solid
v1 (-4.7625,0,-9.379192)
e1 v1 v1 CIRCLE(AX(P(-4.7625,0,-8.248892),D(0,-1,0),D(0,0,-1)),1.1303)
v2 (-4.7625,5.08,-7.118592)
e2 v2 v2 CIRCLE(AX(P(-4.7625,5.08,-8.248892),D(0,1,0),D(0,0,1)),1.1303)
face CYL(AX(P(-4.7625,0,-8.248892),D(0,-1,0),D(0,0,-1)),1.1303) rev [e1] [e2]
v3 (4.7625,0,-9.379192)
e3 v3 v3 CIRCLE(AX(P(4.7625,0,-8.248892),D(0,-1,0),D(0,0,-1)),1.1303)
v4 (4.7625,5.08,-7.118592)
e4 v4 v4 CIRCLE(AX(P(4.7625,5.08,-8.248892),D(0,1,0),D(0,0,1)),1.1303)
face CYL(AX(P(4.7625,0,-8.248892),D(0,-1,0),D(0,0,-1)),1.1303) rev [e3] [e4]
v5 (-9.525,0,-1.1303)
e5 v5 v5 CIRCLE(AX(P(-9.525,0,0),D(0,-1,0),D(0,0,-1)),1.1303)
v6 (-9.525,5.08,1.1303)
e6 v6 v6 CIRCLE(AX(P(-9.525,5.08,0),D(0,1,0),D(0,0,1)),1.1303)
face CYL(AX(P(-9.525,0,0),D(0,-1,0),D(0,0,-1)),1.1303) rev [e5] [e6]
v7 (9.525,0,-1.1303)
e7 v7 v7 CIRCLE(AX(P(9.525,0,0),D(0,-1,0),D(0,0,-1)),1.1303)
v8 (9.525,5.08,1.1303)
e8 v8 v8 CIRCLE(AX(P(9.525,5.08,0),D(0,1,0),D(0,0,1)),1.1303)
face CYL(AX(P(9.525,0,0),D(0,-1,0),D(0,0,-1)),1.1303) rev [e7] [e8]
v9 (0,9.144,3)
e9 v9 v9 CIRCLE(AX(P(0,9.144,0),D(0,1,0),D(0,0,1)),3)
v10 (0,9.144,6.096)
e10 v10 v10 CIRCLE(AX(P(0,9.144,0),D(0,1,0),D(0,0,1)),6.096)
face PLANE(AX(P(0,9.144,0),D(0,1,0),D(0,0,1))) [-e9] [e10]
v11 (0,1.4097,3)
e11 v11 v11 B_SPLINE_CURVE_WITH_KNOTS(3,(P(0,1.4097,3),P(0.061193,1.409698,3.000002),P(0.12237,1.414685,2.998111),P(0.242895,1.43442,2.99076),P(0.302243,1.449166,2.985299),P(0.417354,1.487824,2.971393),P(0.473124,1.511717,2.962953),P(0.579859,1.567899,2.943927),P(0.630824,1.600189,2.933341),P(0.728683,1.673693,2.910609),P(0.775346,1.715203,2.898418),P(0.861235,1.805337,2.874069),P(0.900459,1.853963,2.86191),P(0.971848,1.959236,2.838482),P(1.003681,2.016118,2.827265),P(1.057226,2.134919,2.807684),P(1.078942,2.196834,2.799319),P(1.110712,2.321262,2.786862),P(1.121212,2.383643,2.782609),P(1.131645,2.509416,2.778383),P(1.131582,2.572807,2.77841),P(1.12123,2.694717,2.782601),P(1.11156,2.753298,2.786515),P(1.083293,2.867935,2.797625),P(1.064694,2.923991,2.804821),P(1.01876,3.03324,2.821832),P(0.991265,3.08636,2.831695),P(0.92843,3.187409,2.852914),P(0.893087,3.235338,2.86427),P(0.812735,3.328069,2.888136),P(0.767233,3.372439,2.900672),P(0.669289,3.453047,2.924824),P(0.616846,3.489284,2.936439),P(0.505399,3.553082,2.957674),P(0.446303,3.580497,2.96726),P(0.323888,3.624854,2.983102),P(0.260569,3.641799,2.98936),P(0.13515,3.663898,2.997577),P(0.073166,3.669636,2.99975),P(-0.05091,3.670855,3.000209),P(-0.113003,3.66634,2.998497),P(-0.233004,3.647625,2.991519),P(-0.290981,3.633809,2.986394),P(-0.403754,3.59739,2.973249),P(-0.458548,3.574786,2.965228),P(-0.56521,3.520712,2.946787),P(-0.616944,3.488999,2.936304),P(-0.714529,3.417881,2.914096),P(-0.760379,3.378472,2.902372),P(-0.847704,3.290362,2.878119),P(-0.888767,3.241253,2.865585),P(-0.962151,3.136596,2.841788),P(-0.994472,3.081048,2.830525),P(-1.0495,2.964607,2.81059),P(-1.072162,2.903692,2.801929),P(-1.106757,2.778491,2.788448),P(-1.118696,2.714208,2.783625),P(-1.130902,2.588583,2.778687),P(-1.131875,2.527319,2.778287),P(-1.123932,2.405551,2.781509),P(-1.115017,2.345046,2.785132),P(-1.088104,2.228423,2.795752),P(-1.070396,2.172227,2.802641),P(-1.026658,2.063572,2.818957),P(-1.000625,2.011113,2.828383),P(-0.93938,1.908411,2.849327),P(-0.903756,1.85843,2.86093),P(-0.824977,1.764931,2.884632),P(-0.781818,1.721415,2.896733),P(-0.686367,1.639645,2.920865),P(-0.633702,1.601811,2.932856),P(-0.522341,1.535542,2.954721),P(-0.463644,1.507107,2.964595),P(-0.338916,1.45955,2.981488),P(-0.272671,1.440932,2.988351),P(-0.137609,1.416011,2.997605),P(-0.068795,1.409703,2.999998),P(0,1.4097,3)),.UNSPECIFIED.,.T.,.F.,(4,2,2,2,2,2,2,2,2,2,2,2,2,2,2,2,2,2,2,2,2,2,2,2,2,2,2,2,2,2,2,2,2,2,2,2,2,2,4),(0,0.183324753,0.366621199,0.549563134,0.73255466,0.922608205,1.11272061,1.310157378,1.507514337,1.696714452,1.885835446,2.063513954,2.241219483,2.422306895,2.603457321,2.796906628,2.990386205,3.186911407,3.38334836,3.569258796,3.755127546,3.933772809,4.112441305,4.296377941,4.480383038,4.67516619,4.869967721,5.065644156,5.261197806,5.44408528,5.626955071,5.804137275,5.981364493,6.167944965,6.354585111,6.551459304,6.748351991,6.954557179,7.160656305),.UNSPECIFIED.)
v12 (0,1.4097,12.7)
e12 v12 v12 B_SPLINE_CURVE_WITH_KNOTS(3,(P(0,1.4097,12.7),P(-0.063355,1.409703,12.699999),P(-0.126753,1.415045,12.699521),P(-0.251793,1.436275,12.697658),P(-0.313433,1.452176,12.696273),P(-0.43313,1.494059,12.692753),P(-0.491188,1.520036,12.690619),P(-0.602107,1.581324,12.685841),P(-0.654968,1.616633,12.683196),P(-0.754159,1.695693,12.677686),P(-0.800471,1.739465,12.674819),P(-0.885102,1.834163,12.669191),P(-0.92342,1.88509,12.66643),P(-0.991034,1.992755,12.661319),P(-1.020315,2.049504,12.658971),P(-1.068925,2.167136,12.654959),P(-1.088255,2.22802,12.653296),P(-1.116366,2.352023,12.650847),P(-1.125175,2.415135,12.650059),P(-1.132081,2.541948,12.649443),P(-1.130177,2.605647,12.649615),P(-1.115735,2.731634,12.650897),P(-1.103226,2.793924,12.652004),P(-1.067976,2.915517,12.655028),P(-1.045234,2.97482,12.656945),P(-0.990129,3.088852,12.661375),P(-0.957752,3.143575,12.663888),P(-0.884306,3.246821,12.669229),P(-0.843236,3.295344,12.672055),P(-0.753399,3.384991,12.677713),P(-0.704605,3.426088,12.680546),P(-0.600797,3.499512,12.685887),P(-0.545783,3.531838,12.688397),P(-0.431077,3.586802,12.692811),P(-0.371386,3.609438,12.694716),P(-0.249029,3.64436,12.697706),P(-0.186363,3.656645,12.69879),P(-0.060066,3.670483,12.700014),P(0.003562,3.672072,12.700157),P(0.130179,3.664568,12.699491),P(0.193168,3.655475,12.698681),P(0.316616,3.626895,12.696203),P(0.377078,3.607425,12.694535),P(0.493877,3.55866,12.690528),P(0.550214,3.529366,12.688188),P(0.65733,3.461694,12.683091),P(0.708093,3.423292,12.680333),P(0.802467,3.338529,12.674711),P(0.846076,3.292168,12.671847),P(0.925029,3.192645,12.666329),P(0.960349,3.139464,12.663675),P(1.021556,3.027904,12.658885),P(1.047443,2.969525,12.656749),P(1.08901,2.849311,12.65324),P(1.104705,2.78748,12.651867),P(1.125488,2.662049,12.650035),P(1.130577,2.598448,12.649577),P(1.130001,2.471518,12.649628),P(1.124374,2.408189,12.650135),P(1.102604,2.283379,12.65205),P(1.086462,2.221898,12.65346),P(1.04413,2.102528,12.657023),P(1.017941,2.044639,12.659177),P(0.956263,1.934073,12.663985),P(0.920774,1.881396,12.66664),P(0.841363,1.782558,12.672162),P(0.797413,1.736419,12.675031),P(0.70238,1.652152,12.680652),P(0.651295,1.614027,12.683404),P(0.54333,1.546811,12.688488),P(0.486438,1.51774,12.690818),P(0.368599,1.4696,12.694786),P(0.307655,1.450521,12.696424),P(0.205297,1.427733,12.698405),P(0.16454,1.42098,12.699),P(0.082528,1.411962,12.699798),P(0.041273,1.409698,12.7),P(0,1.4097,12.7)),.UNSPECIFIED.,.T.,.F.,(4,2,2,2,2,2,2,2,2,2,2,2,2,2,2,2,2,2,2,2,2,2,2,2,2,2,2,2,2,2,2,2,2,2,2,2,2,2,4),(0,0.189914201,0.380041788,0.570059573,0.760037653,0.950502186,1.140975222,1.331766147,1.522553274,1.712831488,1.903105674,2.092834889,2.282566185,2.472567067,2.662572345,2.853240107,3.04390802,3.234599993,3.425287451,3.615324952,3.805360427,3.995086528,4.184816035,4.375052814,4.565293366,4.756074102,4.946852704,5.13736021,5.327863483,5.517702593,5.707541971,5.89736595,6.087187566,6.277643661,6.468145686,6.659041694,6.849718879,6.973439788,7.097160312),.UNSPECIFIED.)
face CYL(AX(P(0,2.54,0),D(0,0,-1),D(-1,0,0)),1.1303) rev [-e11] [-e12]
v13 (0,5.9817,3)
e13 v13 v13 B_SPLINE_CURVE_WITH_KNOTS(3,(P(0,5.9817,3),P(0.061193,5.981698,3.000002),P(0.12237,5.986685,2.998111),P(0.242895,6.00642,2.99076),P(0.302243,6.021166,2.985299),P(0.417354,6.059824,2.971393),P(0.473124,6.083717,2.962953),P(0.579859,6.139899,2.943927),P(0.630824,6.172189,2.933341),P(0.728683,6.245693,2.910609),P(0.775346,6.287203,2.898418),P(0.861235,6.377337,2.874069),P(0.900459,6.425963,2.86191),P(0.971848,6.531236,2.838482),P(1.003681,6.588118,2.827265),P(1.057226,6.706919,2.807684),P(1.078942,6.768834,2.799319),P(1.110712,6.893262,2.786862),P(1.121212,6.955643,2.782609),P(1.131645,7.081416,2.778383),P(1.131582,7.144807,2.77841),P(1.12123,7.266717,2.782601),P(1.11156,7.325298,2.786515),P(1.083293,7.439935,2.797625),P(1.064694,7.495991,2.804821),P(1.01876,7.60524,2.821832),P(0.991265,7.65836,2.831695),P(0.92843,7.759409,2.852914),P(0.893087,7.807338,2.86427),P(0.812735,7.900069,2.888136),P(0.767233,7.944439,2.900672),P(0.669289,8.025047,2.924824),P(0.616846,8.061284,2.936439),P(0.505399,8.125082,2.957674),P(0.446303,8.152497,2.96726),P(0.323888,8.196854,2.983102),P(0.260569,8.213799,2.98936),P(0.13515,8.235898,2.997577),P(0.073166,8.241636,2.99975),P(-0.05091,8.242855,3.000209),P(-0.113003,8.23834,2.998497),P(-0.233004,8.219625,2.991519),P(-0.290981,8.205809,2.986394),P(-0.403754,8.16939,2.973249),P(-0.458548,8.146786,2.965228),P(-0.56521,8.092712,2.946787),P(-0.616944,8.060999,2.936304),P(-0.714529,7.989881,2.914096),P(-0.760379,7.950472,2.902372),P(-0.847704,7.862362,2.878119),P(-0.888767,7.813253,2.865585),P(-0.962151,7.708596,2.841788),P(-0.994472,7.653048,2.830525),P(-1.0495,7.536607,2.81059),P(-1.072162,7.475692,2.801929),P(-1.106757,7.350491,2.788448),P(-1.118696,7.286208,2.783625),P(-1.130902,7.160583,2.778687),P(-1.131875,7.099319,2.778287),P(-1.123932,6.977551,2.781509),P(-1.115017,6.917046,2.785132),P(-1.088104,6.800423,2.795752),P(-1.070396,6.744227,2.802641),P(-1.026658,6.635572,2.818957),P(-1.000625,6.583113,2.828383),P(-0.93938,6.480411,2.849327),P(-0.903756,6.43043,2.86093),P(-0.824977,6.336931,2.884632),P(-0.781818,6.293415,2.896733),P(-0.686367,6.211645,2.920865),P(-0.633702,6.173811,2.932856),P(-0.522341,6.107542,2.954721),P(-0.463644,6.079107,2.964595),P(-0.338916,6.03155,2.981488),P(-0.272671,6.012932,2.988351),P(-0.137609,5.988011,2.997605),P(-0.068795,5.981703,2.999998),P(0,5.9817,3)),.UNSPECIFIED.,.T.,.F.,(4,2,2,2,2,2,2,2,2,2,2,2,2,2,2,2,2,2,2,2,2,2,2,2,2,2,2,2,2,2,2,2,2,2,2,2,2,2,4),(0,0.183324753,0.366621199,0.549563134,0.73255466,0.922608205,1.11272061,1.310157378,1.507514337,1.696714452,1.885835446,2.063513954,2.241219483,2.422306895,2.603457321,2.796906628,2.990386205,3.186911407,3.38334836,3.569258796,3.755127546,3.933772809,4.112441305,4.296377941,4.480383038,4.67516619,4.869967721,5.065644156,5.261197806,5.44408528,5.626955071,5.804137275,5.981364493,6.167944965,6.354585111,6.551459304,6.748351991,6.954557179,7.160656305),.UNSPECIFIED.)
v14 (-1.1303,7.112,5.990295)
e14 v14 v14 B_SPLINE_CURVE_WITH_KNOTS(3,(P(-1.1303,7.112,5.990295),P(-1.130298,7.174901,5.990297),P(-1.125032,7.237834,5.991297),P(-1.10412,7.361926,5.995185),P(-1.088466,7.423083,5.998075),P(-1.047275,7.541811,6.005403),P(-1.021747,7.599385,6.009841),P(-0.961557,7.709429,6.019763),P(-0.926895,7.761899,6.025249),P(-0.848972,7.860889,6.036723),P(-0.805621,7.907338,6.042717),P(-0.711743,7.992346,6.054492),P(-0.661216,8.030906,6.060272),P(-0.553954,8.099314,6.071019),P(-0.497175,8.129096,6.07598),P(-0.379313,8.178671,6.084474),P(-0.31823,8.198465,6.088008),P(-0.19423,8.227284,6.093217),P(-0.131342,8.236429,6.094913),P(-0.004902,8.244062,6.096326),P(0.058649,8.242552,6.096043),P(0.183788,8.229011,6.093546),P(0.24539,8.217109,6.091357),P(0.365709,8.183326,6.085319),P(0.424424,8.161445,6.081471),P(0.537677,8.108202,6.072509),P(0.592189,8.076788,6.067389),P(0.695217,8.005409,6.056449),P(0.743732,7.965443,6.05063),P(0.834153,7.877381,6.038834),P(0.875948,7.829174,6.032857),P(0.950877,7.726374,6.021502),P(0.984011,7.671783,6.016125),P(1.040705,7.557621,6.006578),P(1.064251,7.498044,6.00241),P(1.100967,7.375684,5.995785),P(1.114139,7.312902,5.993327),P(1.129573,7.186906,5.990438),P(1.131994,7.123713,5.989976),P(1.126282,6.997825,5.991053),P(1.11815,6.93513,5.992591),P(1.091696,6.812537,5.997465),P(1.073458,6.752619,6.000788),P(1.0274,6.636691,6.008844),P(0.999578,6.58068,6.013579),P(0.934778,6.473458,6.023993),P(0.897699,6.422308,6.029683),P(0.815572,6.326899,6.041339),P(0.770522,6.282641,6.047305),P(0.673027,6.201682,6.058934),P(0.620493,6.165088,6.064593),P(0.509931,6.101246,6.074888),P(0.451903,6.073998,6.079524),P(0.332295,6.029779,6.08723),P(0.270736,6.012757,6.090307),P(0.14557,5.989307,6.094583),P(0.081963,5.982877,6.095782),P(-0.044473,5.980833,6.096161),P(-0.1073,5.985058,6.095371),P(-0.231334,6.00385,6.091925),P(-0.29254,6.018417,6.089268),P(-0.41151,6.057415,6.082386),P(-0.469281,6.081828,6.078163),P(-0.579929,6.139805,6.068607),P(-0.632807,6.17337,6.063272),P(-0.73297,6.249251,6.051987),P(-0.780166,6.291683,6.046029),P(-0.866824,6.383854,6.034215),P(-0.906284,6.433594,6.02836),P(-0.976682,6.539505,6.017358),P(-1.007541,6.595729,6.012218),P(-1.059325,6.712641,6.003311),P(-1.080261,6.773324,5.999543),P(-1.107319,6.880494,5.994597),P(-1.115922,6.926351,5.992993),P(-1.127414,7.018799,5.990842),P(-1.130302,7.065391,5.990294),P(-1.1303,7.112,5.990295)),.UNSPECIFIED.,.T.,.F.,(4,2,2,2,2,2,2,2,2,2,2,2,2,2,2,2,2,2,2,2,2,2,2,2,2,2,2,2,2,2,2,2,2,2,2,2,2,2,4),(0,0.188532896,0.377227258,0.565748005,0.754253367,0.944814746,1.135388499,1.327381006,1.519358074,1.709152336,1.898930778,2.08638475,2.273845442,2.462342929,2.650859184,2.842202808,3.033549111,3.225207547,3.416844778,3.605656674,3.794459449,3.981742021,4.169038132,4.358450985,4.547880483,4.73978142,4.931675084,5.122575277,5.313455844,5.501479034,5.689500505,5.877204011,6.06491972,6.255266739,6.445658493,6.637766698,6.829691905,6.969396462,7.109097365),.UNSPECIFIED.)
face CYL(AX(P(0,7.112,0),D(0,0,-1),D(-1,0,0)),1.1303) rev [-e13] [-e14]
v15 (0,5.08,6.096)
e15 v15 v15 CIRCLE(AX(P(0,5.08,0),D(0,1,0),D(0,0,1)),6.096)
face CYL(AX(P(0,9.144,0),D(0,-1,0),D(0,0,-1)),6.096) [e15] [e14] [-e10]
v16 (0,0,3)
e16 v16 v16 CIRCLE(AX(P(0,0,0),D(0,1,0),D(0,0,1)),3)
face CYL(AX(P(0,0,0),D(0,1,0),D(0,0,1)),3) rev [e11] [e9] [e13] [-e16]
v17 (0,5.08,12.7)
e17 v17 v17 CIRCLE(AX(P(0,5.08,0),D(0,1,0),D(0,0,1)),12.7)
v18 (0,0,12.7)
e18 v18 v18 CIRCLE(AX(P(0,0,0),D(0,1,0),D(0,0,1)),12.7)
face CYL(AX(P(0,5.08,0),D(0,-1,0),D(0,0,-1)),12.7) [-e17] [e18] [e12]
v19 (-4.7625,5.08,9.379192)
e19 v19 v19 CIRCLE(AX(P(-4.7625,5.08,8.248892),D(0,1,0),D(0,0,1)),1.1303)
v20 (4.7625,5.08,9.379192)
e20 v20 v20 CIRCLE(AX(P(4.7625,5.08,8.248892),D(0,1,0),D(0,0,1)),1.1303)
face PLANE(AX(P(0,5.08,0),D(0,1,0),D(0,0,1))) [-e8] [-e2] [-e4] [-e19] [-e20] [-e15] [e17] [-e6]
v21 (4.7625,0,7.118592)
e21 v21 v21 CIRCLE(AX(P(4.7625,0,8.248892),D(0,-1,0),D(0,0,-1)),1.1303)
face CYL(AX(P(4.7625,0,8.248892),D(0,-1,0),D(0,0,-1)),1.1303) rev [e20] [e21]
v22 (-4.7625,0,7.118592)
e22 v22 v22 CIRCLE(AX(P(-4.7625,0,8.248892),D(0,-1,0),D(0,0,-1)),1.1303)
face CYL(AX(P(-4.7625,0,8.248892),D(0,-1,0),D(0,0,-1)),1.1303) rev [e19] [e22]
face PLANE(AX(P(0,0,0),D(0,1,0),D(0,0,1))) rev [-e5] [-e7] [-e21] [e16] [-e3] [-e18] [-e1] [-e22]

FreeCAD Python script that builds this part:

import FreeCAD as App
import Part
import Sketcher

V = App.Vector
Q = App.Units.Quantity

doc = App.newDocument("Part")
body = doc.addObject("PartDesign::Body", "Body")

sketch1 = body.newObject("Sketcher::SketchObject", "Sketch")
sketch1.AttachmentSupport = (doc.getObject("XZ_Plane"), [""])
sketch1.MapMode = "FlatFace"
sketch1.addGeometry(Part.Circle(V(0, 0, 0), V(0, 0, 1), 13), False)
sketch1.addConstraint(Sketcher.Constraint("Coincident", 0, 3, -1, 1))
sketch1.addConstraint(Sketcher.Constraint("Diameter", 0, Q("1 in")))
pad1 = body.newObject("PartDesign::Pad", "Pad")
pad1.Profile = sketch1
pad1.Length = Q("0.2 in")
pad1.Reversed = True

sketch2 = body.newObject("Sketcher::SketchObject", "Sketch001")
sketch2.AttachmentSupport = (doc.getObject("XZ_Plane"), [""])
sketch2.MapMode = "FlatFace"
sketch2.AttachmentOffset = App.Placement(V(0, 0, -0.2 * 25.4), App.Rotation())
sketch2.addGeometry(Part.Circle(V(0, 0, 0), V(0, 0, 1), 6), False)
sketch2.addConstraint(Sketcher.Constraint("Coincident", 0, 3, -1, 1))
sketch2.addConstraint(Sketcher.Constraint("Diameter", 0, Q("0.48 in")))
pad2 = body.newObject("PartDesign::Pad", "Pad001")
pad2.Profile = sketch2
pad2.Length = Q("0.16 in")
pad2.Reversed = True

sketch3 = body.newObject("Sketcher::SketchObject", "Sketch002")
sketch3.AttachmentSupport = (doc.getObject("XZ_Plane"), [""])
sketch3.MapMode = "FlatFace"
sketch3.AttachmentOffset = App.Placement(V(0, 0, -0.36 * 25.4), App.Rotation())
sketch3.addGeometry(Part.Circle(V(0, 0, 0), V(0, 0, 1), 3), False)
sketch3.addConstraint(Sketcher.Constraint("Coincident", 0, 3, -1, 1))
sketch3.addConstraint(Sketcher.Constraint("Diameter", 0, Q("6 mm")))
pocket1 = body.newObject("PartDesign::Pocket", "Pocket")
pocket1.Profile = sketch3
pocket1.Type = "ThroughAll"
pocket1.Reversed = True

sketch4 = body.newObject("Sketcher::SketchObject", "Sketch003")
sketch4.AttachmentSupport = (doc.getObject("YZ_Plane"), [""])
sketch4.MapMode = "FlatFace"
sketch4.addGeometry(Part.LineSegment(V(7.1, 12.7, 0), V(7.1, 0, 0)), False)
sketch4.addGeometry(Part.LineSegment(V(7.1, 0, 0), V(8.2, 0, 0)), False)
sketch4.addGeometry(Part.LineSegment(V(8.2, 0, 0), V(8.2, 12.7, 0)), False)
sketch4.addGeometry(Part.LineSegment(V(8.2, 12.7, 0), V(7.1, 12.7, 0)), False)
sketch4.addGeometry(Part.LineSegment(V(7.1, 0, 0), V(7.1, 12.7, 0)), True)
sketch4.addConstraint(Sketcher.Constraint("Coincident", 0, 2, 1, 1))
sketch4.addConstraint(Sketcher.Constraint("Coincident", 1, 2, 2, 1))
sketch4.addConstraint(Sketcher.Constraint("Coincident", 2, 2, 3, 1))
sketch4.addConstraint(Sketcher.Constraint("Coincident", 3, 2, 0, 1))
sketch4.addConstraint(Sketcher.Constraint("Vertical", 0))
sketch4.addConstraint(Sketcher.Constraint("Horizontal", 1))
sketch4.addConstraint(Sketcher.Constraint("Vertical", 2))
sketch4.addConstraint(Sketcher.Constraint("Horizontal", 3))
sketch4.addConstraint(Sketcher.Constraint("Vertical", 4))
sketch4.addConstraint(Sketcher.Constraint("Coincident", 4, 1, 0, 2))
sketch4.addConstraint(Sketcher.Constraint("PointOnObject", 0, 2, -1))
sketch4.addConstraint(Sketcher.Constraint("Horizontal", 2, 2, 4, 2))
sketch4.addConstraint(Sketcher.Constraint("DistanceY", 0, 2, 0, 1, Q("0.5 in")))
sketch4.addConstraint(Sketcher.Constraint("DistanceX", -1, 1, 0, 2, Q("0.28 in")))
sketch4.addConstraint(Sketcher.Constraint("DistanceX", 1, 1, 1, 2, Q("0.0445 in")))
groove = body.newObject("PartDesign::Groove", "Groove")
groove.Profile = sketch4
groove.ReferenceAxis = (sketch4, ["Axis0"])
groove.Angle = 360
doc.recompute()

linearpattern = body.newObject("PartDesign::LinearPattern", "LinearPattern")
linearpattern.Originals = [groove]
linearpattern.Direction = (doc.getObject("Y_Axis"), [""])
linearpattern.Mode = "offset"
linearpattern.Offset = Q("0.18 in")
linearpattern.Occurrences = 2
linearpattern.Reversed = True
body.Tip = linearpattern

sketch5 = body.newObject("Sketcher::SketchObject", "Sketch004")
sketch5.AttachmentSupport = (doc.getObject("XZ_Plane"), [""])
sketch5.MapMode = "FlatFace"
sketch5.addGeometry(Part.Circle(V(-9.5, 0, 0), V(0, 0, 1), 1.1), False)
sketch5.addGeometry(Part.Circle(V(-4.8, 8.2, 0), V(0, 0, 1), 1.1), False)
sketch5.addGeometry(Part.Circle(V(4.8, 8.2, 0), V(0, 0, 1), 1.1), False)
sketch5.addGeometry(Part.Circle(V(9.5, 0, 0), V(0, 0, 1), 1.1), False)
sketch5.addGeometry(Part.Circle(V(4.8, -8.2, 0), V(0, 0, 1), 1.1), False)
sketch5.addGeometry(Part.Circle(V(-4.8, -8.2, 0), V(0, 0, 1), 1.1), False)
sketch5.addConstraint(Sketcher.Constraint("Equal", 0, 1))
sketch5.addConstraint(Sketcher.Constraint("Equal", 1, 2))
sketch5.addConstraint(Sketcher.Constraint("Equal", 2, 3))
sketch5.addConstraint(Sketcher.Constraint("Equal", 3, 4))
sketch5.addConstraint(Sketcher.Constraint("Equal", 4, 5))
sketch5.addConstraint(Sketcher.Constraint("Symmetric", 0, 3, 3, 3, -1, 1))
sketch5.addConstraint(Sketcher.Constraint("Symmetric", 1, 3, 4, 3, -1, 1))
sketch5.addConstraint(Sketcher.Constraint("Symmetric", 2, 3, 5, 3, -1, 1))
sketch5.addConstraint(Sketcher.Constraint("Symmetric", 1, 3, 2, 3, -2))
sketch5.addConstraint(Sketcher.Constraint("PointOnObject", 0, 3, -1))
sketch5.addConstraint(Sketcher.Constraint("Diameter", 0, Q("0.089 in")))
sketch5.addConstraint(Sketcher.Constraint("DistanceX", 0, 3, 3, 3, Q("0.75 in")))
sketch5.addConstraint(Sketcher.Constraint("DistanceX", 1, 3, -1, 1, Q("0.1875 in")))
sketch5.addConstraint(Sketcher.Constraint("DistanceY", -1, 1, 1, 3, Q("8.248892 mm")))
doc.recompute()
hole = body.newObject("PartDesign::Hole", "Hole")
hole.Profile = sketch5
hole.ThreadType = "None"
hole.Diameter = Q("0.089 in")
hole.DepthType = "ThroughAll"

doc.recompute()
